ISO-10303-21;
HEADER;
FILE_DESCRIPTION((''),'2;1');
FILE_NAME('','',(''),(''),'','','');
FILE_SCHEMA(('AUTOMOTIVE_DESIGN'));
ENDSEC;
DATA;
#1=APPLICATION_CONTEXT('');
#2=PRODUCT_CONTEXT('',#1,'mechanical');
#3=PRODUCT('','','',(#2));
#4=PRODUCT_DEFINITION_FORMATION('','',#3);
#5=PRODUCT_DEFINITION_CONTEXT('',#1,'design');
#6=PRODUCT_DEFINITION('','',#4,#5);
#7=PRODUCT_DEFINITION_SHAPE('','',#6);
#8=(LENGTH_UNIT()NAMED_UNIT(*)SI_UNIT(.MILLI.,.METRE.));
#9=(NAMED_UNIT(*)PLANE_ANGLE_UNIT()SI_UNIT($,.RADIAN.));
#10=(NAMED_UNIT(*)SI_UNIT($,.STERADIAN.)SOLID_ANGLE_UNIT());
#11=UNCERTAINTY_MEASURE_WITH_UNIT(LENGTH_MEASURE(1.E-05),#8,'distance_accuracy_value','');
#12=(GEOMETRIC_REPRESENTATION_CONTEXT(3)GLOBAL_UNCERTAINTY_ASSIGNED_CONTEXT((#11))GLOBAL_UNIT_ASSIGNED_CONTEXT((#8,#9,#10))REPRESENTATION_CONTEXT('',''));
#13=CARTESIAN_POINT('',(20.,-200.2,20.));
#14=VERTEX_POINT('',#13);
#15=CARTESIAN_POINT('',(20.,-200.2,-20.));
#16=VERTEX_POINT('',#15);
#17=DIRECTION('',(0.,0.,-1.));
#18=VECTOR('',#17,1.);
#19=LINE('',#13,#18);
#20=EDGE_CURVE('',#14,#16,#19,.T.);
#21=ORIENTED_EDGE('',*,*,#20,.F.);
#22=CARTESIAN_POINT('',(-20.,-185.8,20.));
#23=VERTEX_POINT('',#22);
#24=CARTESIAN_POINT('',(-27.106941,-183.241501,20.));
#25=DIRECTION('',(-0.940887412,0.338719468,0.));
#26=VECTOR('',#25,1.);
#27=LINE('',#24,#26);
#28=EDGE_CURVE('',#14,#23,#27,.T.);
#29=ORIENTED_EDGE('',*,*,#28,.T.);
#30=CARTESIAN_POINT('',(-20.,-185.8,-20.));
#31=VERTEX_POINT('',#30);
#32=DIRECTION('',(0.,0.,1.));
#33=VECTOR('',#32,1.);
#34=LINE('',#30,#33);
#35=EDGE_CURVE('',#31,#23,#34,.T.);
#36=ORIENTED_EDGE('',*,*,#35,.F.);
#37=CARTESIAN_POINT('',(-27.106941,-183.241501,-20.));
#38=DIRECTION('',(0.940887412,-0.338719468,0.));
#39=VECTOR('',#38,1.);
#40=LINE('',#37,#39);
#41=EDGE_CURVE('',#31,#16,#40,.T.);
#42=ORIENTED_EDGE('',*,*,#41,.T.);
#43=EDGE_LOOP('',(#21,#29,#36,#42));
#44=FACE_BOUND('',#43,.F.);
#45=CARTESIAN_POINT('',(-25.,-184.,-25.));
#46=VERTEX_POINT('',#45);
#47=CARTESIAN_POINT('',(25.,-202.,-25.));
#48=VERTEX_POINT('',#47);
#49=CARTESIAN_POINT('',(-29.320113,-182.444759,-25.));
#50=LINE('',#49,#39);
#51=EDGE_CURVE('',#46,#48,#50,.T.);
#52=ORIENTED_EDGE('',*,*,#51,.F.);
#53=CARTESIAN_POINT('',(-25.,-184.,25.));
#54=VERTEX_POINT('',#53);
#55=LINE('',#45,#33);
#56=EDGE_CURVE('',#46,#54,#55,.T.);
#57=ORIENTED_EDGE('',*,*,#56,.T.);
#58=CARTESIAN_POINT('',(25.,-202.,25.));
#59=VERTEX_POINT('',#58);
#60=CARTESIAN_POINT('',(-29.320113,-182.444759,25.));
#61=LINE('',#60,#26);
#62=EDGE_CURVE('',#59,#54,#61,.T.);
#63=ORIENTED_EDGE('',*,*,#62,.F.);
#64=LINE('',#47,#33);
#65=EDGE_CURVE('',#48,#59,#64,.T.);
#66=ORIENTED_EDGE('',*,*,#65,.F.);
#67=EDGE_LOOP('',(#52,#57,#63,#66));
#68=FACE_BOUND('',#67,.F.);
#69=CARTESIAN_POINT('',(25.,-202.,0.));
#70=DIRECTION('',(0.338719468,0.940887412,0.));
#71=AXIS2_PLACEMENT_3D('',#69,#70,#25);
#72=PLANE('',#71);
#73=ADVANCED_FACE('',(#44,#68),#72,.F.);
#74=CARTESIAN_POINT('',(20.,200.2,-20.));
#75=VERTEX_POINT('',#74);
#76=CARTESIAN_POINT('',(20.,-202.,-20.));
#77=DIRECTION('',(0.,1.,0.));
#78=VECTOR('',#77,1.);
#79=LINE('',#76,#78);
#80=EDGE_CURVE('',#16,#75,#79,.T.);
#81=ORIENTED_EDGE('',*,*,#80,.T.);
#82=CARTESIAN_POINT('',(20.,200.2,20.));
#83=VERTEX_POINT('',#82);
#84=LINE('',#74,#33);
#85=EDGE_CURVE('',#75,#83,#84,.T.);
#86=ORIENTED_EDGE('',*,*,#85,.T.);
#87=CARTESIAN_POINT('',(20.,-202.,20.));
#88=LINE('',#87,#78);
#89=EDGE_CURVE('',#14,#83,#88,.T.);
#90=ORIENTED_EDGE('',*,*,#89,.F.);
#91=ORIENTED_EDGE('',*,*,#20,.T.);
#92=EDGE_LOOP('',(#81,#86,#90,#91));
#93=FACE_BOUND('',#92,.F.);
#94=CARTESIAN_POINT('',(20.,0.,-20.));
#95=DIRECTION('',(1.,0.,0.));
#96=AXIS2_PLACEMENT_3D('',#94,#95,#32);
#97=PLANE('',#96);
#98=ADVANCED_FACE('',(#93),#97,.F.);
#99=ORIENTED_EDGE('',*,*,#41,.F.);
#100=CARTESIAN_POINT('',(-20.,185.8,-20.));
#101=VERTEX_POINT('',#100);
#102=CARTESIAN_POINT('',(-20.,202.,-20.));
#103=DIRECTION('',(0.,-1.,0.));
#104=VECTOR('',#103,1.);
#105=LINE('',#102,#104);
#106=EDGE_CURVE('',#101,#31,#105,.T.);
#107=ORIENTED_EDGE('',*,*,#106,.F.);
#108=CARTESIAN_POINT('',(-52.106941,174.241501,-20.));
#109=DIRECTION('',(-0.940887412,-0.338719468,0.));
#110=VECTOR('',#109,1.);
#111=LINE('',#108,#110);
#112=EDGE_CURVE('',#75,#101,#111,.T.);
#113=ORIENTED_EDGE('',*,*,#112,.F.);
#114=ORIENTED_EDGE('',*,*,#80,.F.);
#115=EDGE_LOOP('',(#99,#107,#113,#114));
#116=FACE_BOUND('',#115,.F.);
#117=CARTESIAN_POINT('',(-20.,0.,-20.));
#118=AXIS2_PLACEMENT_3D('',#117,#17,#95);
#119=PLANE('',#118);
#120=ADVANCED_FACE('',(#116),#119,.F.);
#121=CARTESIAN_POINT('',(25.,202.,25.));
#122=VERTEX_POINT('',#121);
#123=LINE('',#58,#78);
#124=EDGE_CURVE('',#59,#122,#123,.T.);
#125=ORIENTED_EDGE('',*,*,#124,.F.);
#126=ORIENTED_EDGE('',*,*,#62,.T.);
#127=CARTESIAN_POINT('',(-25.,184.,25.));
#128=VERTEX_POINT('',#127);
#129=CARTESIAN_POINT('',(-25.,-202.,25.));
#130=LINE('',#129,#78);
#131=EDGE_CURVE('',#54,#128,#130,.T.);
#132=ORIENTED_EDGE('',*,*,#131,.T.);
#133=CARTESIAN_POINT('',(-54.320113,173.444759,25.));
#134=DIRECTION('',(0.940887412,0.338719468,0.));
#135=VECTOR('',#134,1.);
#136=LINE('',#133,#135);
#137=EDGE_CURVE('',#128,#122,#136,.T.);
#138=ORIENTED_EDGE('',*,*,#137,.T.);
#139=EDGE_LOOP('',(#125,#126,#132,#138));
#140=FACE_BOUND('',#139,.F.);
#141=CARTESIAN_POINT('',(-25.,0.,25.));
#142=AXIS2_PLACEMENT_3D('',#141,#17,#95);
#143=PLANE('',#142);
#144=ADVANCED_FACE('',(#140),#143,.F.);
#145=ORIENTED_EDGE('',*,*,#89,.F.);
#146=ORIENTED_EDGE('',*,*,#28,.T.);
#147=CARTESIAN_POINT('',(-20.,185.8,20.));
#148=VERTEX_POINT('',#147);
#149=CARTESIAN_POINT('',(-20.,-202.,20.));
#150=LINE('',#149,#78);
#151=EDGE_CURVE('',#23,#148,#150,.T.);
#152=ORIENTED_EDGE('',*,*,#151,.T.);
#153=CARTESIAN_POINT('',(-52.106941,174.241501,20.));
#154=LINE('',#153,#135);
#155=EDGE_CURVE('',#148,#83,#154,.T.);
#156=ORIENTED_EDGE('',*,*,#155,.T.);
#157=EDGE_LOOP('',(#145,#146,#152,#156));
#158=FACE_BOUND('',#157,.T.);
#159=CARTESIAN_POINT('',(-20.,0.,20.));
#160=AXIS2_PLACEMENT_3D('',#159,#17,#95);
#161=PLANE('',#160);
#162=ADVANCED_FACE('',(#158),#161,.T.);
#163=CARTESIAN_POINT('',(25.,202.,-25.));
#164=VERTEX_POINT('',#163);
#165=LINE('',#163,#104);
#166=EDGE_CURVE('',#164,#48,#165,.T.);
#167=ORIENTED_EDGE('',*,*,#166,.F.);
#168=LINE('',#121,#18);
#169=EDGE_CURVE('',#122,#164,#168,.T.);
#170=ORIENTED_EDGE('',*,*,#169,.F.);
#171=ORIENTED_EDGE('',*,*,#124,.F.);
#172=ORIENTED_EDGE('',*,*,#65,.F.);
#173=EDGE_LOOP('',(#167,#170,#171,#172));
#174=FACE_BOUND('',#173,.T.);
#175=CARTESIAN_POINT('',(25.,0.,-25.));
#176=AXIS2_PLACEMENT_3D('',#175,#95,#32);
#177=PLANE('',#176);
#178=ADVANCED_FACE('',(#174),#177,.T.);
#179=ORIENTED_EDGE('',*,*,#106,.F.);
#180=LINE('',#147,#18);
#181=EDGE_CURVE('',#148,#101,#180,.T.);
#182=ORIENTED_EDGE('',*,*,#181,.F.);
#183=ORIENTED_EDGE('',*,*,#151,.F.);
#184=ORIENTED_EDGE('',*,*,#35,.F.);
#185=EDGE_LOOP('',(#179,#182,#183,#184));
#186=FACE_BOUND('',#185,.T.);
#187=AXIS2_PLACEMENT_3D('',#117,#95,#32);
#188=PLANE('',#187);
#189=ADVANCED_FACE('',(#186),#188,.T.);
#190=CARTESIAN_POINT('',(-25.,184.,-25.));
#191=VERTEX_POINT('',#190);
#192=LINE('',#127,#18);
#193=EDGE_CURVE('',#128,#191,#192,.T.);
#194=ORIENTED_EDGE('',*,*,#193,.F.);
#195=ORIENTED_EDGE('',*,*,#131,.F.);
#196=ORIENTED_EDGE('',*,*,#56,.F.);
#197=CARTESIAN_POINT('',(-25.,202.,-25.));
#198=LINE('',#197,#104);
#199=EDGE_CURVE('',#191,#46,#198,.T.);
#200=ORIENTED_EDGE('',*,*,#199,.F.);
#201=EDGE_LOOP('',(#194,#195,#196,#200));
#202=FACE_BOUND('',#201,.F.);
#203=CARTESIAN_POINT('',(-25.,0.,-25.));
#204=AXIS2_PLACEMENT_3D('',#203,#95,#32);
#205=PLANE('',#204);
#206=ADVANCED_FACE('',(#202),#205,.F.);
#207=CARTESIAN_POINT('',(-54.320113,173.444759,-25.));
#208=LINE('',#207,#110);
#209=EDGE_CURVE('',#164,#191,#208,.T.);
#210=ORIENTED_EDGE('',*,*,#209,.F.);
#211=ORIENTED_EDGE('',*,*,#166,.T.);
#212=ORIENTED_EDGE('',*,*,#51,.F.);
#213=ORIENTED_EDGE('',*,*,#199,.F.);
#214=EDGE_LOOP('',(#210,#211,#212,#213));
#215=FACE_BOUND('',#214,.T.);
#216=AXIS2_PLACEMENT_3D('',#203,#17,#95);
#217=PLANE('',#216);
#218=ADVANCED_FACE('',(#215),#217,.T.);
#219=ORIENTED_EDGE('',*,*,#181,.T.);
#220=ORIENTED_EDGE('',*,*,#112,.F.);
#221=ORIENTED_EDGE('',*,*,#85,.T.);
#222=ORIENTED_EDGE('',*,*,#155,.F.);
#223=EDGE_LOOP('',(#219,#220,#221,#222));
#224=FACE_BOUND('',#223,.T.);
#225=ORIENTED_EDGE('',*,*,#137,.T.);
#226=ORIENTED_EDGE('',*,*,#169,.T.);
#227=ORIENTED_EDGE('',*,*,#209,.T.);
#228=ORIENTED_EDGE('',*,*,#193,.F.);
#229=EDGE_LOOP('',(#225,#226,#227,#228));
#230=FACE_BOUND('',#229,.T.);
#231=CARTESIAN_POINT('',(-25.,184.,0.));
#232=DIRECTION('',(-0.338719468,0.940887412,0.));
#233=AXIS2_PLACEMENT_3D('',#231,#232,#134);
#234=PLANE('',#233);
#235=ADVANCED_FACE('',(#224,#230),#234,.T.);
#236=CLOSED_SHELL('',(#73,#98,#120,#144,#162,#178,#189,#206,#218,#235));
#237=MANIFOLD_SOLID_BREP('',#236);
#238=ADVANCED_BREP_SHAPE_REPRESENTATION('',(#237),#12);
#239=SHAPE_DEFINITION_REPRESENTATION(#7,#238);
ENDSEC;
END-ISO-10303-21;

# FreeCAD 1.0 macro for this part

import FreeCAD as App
import Part
import Sketcher
from FreeCAD import Vector
Q = App.Units.Quantity

doc = App.newDocument("Part")
body = doc.addObject("PartDesign::Body", "Body")

# Sketch on XZ plane
sketch1 = body.newObject("Sketcher::SketchObject", "Sketch")
sketch1.AttachmentSupport = (doc.getObject("XZ_Plane"), [""])
sketch1.MapMode = "FlatFace"
sketch1.addGeometry([
    Part.LineSegment(Vector(-25, 25, 0), Vector(-25, -25, 0)),  # 0
    Part.LineSegment(Vector(-25, -25, 0), Vector(25, -25, 0)),  # 1
    Part.LineSegment(Vector(25, -25, 0), Vector(25, 25, 0)),  # 2
    Part.LineSegment(Vector(25, 25, 0), Vector(-25, 25, 0)),  # 3
    Part.LineSegment(Vector(20, -20, 0), Vector(-20, -20, 0)),  # 4
    Part.LineSegment(Vector(-20, -20, 0), Vector(-20, 20, 0)),  # 5
    Part.LineSegment(Vector(-20, 20, 0), Vector(20, 20, 0)),  # 6
    Part.LineSegment(Vector(20, 20, 0), Vector(20, -20, 0)),  # 7
], False)
sketch1.addConstraint([
    Sketcher.Constraint("Coincident", 0, 2, 1, 1),
    Sketcher.Constraint("Coincident", 1, 2, 2, 1),
    Sketcher.Constraint("Coincident", 2, 2, 3, 1),
    Sketcher.Constraint("Coincident", 3, 2, 0, 1),
    Sketcher.Constraint("Coincident", 4, 2, 5, 1),
    Sketcher.Constraint("Coincident", 5, 2, 6, 1),
    Sketcher.Constraint("Coincident", 6, 2, 7, 1),
    Sketcher.Constraint("Coincident", 7, 2, 4, 1),
    Sketcher.Constraint("Vertical", 0),
    Sketcher.Constraint("Horizontal", 1),
    Sketcher.Constraint("Vertical", 2),
    Sketcher.Constraint("Horizontal", 3),
    Sketcher.Constraint("Horizontal", 4),
    Sketcher.Constraint("Vertical", 5),
    Sketcher.Constraint("Horizontal", 6),
    Sketcher.Constraint("Vertical", 7),
    Sketcher.Constraint("Symmetric", 0, 2, 2, 2, -1, 1),
    Sketcher.Constraint("Symmetric", 4, 2, 6, 2, -1, 1),
    Sketcher.Constraint("Equal", 3, 0),
    Sketcher.Constraint("Equal", 6, 5),
    Sketcher.Constraint("DistanceX", 1, 1, 1, 2, Q("50 mm")),
    Sketcher.Constraint("DistanceX", 4, 2, 4, 1, Q("40 mm")),
])
pad1 = body.newObject("PartDesign::Pad", "Pad")
pad1.Profile = sketch1
pad1.Length = 404
pad1.Midplane = True

# Sketch on XY plane
sketch2 = body.newObject("Sketcher::SketchObject", "Sketch001")
sketch2.AttachmentSupport = (doc.getObject("XY_Plane"), [""])
sketch2.MapMode = "FlatFace"
sketch2.addGeometry([
    Part.LineSegment(Vector(-25, 184, 0), Vector(25, 202, 0)),  # 0
    Part.LineSegment(Vector(25, 202, 0), Vector(-25, 202, 0)),  # 1
    Part.LineSegment(Vector(-25, 202, 0), Vector(-25, 184, 0)),  # 2
    Part.LineSegment(Vector(-25, -202, 0), Vector(25, -202, 0)),  # 3
    Part.LineSegment(Vector(25, -202, 0), Vector(-25, -184, 0)),  # 4
    Part.LineSegment(Vector(-25, -184, 0), Vector(-25, -202, 0)),  # 5
], False)
sketch2.addConstraint([
    Sketcher.Constraint("Coincident", 0, 2, 1, 1),
    Sketcher.Constraint("Coincident", 1, 2, 2, 1),
    Sketcher.Constraint("Coincident", 2, 2, 0, 1),
    Sketcher.Constraint("Coincident", 3, 2, 4, 1),
    Sketcher.Constraint("Coincident", 4, 2, 5, 1),
    Sketcher.Constraint("Coincident", 5, 2, 3, 1),
    Sketcher.Constraint("Horizontal", 1),
    Sketcher.Constraint("Vertical", 2),
    Sketcher.Constraint("Horizontal", 3),
    Sketcher.Constraint("Vertical", 5),
    Sketcher.Constraint("Symmetric", 1, 2, 3, 2, -1, 1),
    Sketcher.Constraint("Symmetric", 2, 2, 4, 2, -1),
    Sketcher.Constraint("Vertical", 0, 2, 3, 2),
    Sketcher.Constraint("DistanceX", 1, 2, 1, 1, Q("50 mm")),
    Sketcher.Constraint("DistanceY", 2, 2, 2, 1, Q("18 mm")),
    Sketcher.Constraint("DistanceY", -1, 1, 0, 2, Q("202 mm")),
])
pocket1 = body.newObject("PartDesign::Pocket", "Pocket")
pocket1.Profile = sketch2
pocket1.Type = "ThroughAll"
pocket1.Midplane = True

doc.recompute()
